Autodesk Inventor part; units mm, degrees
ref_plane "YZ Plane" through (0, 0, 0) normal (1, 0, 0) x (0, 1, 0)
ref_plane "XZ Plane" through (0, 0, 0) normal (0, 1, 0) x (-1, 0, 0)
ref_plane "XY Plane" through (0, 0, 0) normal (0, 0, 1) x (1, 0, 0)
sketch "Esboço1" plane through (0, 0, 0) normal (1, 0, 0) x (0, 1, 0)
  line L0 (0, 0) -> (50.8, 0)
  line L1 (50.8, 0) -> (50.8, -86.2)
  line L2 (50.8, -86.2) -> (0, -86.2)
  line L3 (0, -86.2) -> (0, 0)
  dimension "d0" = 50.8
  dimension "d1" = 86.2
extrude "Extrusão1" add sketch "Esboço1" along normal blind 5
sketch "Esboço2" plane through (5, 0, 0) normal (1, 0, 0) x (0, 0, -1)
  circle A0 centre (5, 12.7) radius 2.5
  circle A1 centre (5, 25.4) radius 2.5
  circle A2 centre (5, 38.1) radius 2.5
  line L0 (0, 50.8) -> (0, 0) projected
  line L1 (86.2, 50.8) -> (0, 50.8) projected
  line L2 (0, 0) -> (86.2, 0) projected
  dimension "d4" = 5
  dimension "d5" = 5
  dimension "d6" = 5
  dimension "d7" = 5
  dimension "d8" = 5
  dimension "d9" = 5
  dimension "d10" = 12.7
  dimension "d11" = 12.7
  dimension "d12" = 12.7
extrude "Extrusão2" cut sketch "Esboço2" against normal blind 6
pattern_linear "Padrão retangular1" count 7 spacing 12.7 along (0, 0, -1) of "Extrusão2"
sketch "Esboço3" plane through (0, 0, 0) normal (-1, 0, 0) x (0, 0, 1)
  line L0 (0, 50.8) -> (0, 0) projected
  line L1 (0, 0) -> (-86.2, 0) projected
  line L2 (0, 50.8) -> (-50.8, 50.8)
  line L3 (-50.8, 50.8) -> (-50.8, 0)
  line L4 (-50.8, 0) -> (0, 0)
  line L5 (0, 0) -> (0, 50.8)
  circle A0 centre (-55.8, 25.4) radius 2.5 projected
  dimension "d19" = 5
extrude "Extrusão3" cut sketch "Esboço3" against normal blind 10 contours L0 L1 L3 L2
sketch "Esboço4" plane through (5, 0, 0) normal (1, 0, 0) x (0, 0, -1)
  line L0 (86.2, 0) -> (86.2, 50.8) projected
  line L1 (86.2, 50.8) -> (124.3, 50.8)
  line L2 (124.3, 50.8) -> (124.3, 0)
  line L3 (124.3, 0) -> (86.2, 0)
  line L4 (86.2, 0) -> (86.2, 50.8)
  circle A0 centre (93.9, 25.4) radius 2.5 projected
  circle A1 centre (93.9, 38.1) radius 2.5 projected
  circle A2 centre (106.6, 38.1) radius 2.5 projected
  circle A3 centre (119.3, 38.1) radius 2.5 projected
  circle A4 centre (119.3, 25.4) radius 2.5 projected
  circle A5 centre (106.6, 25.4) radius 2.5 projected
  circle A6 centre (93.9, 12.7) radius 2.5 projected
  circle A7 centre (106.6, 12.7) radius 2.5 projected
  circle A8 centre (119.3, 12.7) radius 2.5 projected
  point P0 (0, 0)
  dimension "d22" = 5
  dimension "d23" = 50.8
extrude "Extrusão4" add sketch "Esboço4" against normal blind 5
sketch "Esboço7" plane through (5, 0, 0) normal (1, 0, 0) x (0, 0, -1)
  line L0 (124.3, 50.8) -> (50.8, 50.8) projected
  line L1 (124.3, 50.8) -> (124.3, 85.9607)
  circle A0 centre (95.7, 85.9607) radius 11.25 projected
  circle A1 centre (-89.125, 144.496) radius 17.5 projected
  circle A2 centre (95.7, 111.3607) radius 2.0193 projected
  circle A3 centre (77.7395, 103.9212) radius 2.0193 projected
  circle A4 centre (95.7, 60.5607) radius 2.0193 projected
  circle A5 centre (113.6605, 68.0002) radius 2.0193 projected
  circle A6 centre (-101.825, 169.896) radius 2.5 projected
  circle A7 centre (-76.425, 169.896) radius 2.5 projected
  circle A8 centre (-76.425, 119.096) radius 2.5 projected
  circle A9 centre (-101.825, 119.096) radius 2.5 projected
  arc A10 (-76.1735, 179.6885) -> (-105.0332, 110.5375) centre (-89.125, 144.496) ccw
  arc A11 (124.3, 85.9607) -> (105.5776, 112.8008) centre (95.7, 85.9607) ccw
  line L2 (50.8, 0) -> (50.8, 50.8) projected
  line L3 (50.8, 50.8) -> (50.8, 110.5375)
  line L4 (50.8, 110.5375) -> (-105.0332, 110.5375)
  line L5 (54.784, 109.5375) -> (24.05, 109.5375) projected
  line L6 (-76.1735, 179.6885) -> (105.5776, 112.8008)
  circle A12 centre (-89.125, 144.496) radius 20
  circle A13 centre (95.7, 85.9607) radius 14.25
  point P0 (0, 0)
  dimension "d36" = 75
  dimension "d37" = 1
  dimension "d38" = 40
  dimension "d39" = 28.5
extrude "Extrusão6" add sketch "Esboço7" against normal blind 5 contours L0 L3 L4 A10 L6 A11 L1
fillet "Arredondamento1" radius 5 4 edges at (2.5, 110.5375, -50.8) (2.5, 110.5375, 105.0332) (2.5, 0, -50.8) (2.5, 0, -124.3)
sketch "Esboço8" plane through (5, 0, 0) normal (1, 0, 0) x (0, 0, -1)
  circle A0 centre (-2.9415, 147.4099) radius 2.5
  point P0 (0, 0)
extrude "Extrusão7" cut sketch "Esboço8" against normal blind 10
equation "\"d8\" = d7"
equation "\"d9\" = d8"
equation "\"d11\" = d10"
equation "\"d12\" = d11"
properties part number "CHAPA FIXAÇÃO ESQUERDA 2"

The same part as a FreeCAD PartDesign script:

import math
import FreeCAD as App
import Part
import Sketcher
Q = App.Units.Quantity


def edges_at(feature, points):
    """Names of the edges that pass closest to the given points."""
    edges = feature.Shape.Edges
    near = lambda p: min(range(len(edges)), key=lambda i: edges[i].distToShape(Part.Vertex(*p))[0])
    return sorted({f"Edge{near(p) + 1}" for p in points})


def add_polygon(sketch, points):
    """Adds a closed chain of lines whose ends are joined by coincident constraints."""
    first, n = sketch.GeometryCount, len(points)
    for a, b in zip(points, points[1:] + points[:1]):
        sketch.addGeometry(Part.LineSegment(App.Vector(*a, 0), App.Vector(*b, 0)), False)
    for i in range(n):
        sketch.addConstraint(Sketcher.Constraint("Coincident", first + i, 2, first + (i + 1) % n, 1))

doc = App.newDocument("Part")
params = doc.addObject("Spreadsheet::Sheet", "Params")
for row, (alias, value) in enumerate([
    ("sketch1_width", "50.8 mm"),
    ("sketch1_height", "86.2 mm"),
    ("pad1_length", "5 mm"),
    ("sketch2_diameter", "5 mm"),
    ("pocket1_length", "6 mm"),
    ("linearpattern_pitch", "12.7 mm"),
    ("sketch3_width", "50.8 mm"),
    ("pocket2_length", "10 mm"),
    ("sketch4_diameter", "5 mm"),
    ("sketch4_width", "50.8 mm"),
    ("sketch4_height", "38.1 mm"),
    ("pad2_length", "5 mm"),
    ("sketch5_diameter", "40 mm"),
    ("sketch5_diameter2", "28.5 mm"),
    ("sketch5_radius", "37.5 mm"),
    ("sketch5_diameter3", "5 mm"),
    ("sketch5_radius2", "28.6 mm"),
    ("pad3_length", "5 mm"),
    ("fillet_radius", "5 mm"),
    ("sketch6_diameter", "5 mm"),
    ("pocket3_length", "10 mm"),
], start=1):
    params.set(f"A{row}", alias)
    params.set(f"B{row}", "=" + value)
    params.setAlias(f"B{row}", alias)

body = doc.addObject("PartDesign::Body", "Body")

# Sketch on YZ plane
sketch1 = body.newObject("Sketcher::SketchObject", "Sketch")
sketch1.AttachmentSupport = (doc.getObject("YZ_Plane"), [""])
sketch1.MapMode = "FlatFace"
add_polygon(sketch1, [(51, 0), (0, 0), (0, -86), (51, -86)])  # lines 0-3
sketch1.addConstraint(Sketcher.Constraint("Horizontal", 0))
sketch1.addConstraint(Sketcher.Constraint("Vertical", 1))
sketch1.addConstraint(Sketcher.Constraint("Horizontal", 2))
sketch1.addConstraint(Sketcher.Constraint("Vertical", 3))
sketch1.addConstraint(Sketcher.Constraint("Coincident", 0, 2, -1, 1))
sketch1.addConstraint(Sketcher.Constraint("DistanceX", 0, 2, 0, 1, Q("50.8 mm")))
sketch1.addConstraint(Sketcher.Constraint("DistanceY", 1, 2, 1, 1, Q("86.2 mm")))
sketch1.setExpression("Constraints[9]", "Params.sketch1_width")
sketch1.setExpression("Constraints[10]", "Params.sketch1_height")
pad1 = body.newObject("PartDesign::Pad", "Pad")
pad1.Profile = sketch1
pad1.setExpression("Length", "Params.pad1_length")

# Sketch on YZ plane
sketch2 = body.newObject("Sketcher::SketchObject", "Sketch001")
sketch2.AttachmentSupport = (doc.getObject("YZ_Plane"), [""])
sketch2.MapMode = "FlatFace"
sketch2.AttachmentOffset = App.Placement(App.Vector(0, 0, 5), App.Rotation())
sketch2.addGeometry(Part.Circle(App.Vector(12.7, -5, 0), App.Vector(0, 0, 1), 2.5), False)
sketch2.addGeometry(Part.Circle(App.Vector(25.4, -5, 0), App.Vector(0, 0, 1), 2.5), False)
sketch2.addGeometry(Part.Circle(App.Vector(38.1, -5, 0), App.Vector(0, 0, 1), 2.5), False)
sketch2.addConstraint(Sketcher.Constraint("Equal", 0, 1))
sketch2.addConstraint(Sketcher.Constraint("Equal", 1, 2))
sketch2.addConstraint(Sketcher.Constraint("Horizontal", 0, 3, 1, 3))
sketch2.addConstraint(Sketcher.Constraint("Horizontal", 1, 3, 2, 3))
sketch2.addConstraint(Sketcher.Constraint("Diameter", 0, Q("5 mm")))
sketch2.addConstraint(Sketcher.Constraint("DistanceY", 0, 3, -1, 1, Q("5 mm")))
sketch2.addConstraint(Sketcher.Constraint("DistanceX", -1, 1, 0, 3, Q("12.7 mm")))
sketch2.addConstraint(Sketcher.Constraint("DistanceX", 0, 3, 1, 3, Q("12.7 mm")))
sketch2.addConstraint(Sketcher.Constraint("DistanceX", 1, 3, 2, 3, Q("12.7 mm")))
sketch2.setExpression("Constraints[4]", "Params.sketch2_diameter")
pocket1 = body.newObject("PartDesign::Pocket", "Pocket")
pocket1.Profile = sketch2
pocket1.setExpression("Length", "Params.pocket1_length")
doc.recompute()

linearpattern = body.newObject("PartDesign::LinearPattern", "LinearPattern")
linearpattern.Originals = [pocket1]
linearpattern.Direction = (doc.getObject("Z_Axis"), [""])
linearpattern.Mode = "offset"
linearpattern.setExpression("Offset", "Params.linearpattern_pitch")
linearpattern.Occurrences = 7
linearpattern.Reversed = True
body.Tip = linearpattern

# Sketch on YZ plane
sketch3 = body.newObject("Sketcher::SketchObject", "Sketch002")
sketch3.AttachmentSupport = (doc.getObject("YZ_Plane"), [""])
sketch3.MapMode = "FlatFace"
add_polygon(sketch3, [(0, 0), (51, 0), (51, -51), (0, -51)])  # lines 0-3
sketch3.addConstraint(Sketcher.Constraint("Horizontal", 0))
sketch3.addConstraint(Sketcher.Constraint("Vertical", 1))
sketch3.addConstraint(Sketcher.Constraint("Horizontal", 2))
sketch3.addConstraint(Sketcher.Constraint("Vertical", 3))
sketch3.addConstraint(Sketcher.Constraint("Coincident", 3, 2, -1, 1))
sketch3.addConstraint(Sketcher.Constraint("Equal", 2, 1))
sketch3.addConstraint(Sketcher.Constraint("DistanceX", 0, 1, 0, 2, Q("50.8 mm")))
sketch3.setExpression("Constraints[10]", "Params.sketch3_width")
pocket2 = body.newObject("PartDesign::Pocket", "Pocket001")
pocket2.Profile = sketch3
pocket2.setExpression("Length", "Params.pocket2_length")
pocket2.Reversed = True

# Sketch on YZ plane
sketch4 = body.newObject("Sketcher::SketchObject", "Sketch003")
sketch4.AttachmentSupport = (doc.getObject("YZ_Plane"), [""])
sketch4.MapMode = "FlatFace"
sketch4.AttachmentOffset = App.Placement(App.Vector(0, 0, 5), App.Rotation())
add_polygon(sketch4, [(50.8, -86.2), (0, -86.2), (0, -124.3), (50.8, -124.3)])  # lines 0-3
sketch4.addGeometry(Part.Circle(App.Vector(12.7, -93.9, 0), App.Vector(0, 0, 1), 2.5), False)  # 4
sketch4.addGeometry(Part.Circle(App.Vector(25.4, -93.9, 0), App.Vector(0, 0, 1), 2.5), False)  # 5
sketch4.addGeometry(Part.Circle(App.Vector(12.7, -106.6, 0), App.Vector(0, 0, 1), 2.5), False)  # 6
sketch4.addGeometry(Part.Circle(App.Vector(12.7, -119.3, 0), App.Vector(0, 0, 1), 2.5), False)  # 7
sketch4.addGeometry(Part.Circle(App.Vector(25.4, -106.6, 0), App.Vector(0, 0, 1), 2.5), False)  # 8
sketch4.addGeometry(Part.Circle(App.Vector(25.4, -119.3, 0), App.Vector(0, 0, 1), 2.5), False)  # 9
sketch4.addGeometry(Part.Circle(App.Vector(38.1, -93.9, 0), App.Vector(0, 0, 1), 2.5), False)  # 10
sketch4.addGeometry(Part.Circle(App.Vector(38.1, -106.6, 0), App.Vector(0, 0, 1), 2.5), False)  # 11
sketch4.addGeometry(Part.Circle(App.Vector(38.1, -119.3, 0), App.Vector(0, 0, 1), 2.5), False)  # 12
sketch4.addConstraint(Sketcher.Constraint("Horizontal", 0))
sketch4.addConstraint(Sketcher.Constraint("Vertical", 1))
sketch4.addConstraint(Sketcher.Constraint("Horizontal", 2))
sketch4.addConstraint(Sketcher.Constraint("Vertical", 3))
sketch4.addConstraint(Sketcher.Constraint("Equal", 4, 5))
sketch4.addConstraint(Sketcher.Constraint("Equal", 5, 6))
sketch4.addConstraint(Sketcher.Constraint("Equal", 6, 7))
sketch4.addConstraint(Sketcher.Constraint("Equal", 7, 8))
sketch4.addConstraint(Sketcher.Constraint("Equal", 8, 9))
sketch4.addConstraint(Sketcher.Constraint("Equal", 9, 10))
sketch4.addConstraint(Sketcher.Constraint("Equal", 10, 11))
sketch4.addConstraint(Sketcher.Constraint("Equal", 11, 12))
sketch4.addConstraint(Sketcher.Constraint("PointOnObject", 0, 2, -2))
sketch4.addConstraint(Sketcher.Constraint("Horizontal", 4, 3, 5, 3))
sketch4.addConstraint(Sketcher.Constraint("Horizontal", 6, 3, 8, 3))
sketch4.addConstraint(Sketcher.Constraint("Horizontal", 7, 3, 9, 3))
sketch4.addConstraint(Sketcher.Constraint("Horizontal", 5, 3, 10, 3))
sketch4.addConstraint(Sketcher.Constraint("Horizontal", 8, 3, 11, 3))
sketch4.addConstraint(Sketcher.Constraint("Horizontal", 9, 3, 12, 3))
sketch4.addConstraint(Sketcher.Constraint("Vertical", 4, 3, 6, 3))
sketch4.addConstraint(Sketcher.Constraint("Vertical", 6, 3, 7, 3))
sketch4.addConstraint(Sketcher.Constraint("Vertical", 5, 3, 8, 3))
sketch4.addConstraint(Sketcher.Constraint("Vertical", 8, 3, 9, 3))
sketch4.addConstraint(Sketcher.Constraint("Vertical", 10, 3, 11, 3))
sketch4.addConstraint(Sketcher.Constraint("Vertical", 11, 3, 12, 3))
sketch4.addConstraint(Sketcher.Constraint("Diameter", 4, Q("5 mm")))
sketch4.addConstraint(Sketcher.Constraint("DistanceX", 0, 2, 0, 1, Q("50.8 mm")))
sketch4.addConstraint(Sketcher.Constraint("DistanceY", 1, 2, 7, 3, Q("5 mm")))
sketch4.addConstraint(Sketcher.Constraint("DistanceY", 1, 2, 1, 1, Q("38.1 mm")))
sketch4.addConstraint(Sketcher.Constraint("DistanceX", -1, 1, 4, 3, Q("12.7 mm")))
sketch4.addConstraint(Sketcher.Constraint("DistanceY", 4, 3, -1, 1, Q("93.9 mm")))
sketch4.addConstraint(Sketcher.Constraint("DistanceX", -1, 1, 5, 3, Q("25.4 mm")))
sketch4.addConstraint(Sketcher.Constraint("DistanceY", 6, 3, -1, 1, Q("106.6 mm")))
sketch4.addConstraint(Sketcher.Constraint("DistanceY", 7, 3, -1, 1, Q("119.3 mm")))
sketch4.addConstraint(Sketcher.Constraint("DistanceX", -1, 1, 10, 3, Q("38.1 mm")))
sketch4.setExpression("Constraints[29]", "Params.sketch4_diameter")
sketch4.setExpression("Constraints[30]", "Params.sketch4_width")
sketch4.setExpression("Constraints[32]", "Params.sketch4_height")
pad2 = body.newObject("PartDesign::Pad", "Pad001")
pad2.Profile = sketch4
pad2.setExpression("Length", "Params.pad2_length")
pad2.Reversed = True

# Sketch on YZ plane
sketch5 = body.newObject("Sketcher::SketchObject", "Sketch004")
sketch5.AttachmentSupport = (doc.getObject("YZ_Plane"), [""])
sketch5.MapMode = "FlatFace"
sketch5.AttachmentOffset = App.Placement(App.Vector(0, 0, 5), App.Rotation())
sketch5.addGeometry(Part.LineSegment(App.Vector(50.8, -50.8, 0), App.Vector(50.8, -124.3, 0)), False)
sketch5.addGeometry(Part.LineSegment(App.Vector(50.8, -124.3, 0), App.Vector(86, -124.3, 0)), False)
sketch5.addGeometry(Part.ArcOfCircle(Part.Circle(App.Vector(86, -95.7, 0), App.Vector(0, 0, 1), 28.6), math.radians(-90), math.radians(-20)), False)
sketch5.addGeometry(Part.LineSegment(App.Vector(112.8, -105.6, 0), App.Vector(179.7, 76.2, 0)), False)
sketch5.addGeometry(Part.ArcOfCircle(Part.Circle(App.Vector(144.5, 89.1, 0), App.Vector(0, 0, 1), 37.5), math.radians(-20), math.radians(155)), False)
sketch5.addGeometry(Part.LineSegment(App.Vector(110.5, 105, 0), App.Vector(110.5, -50.8, 0)), False)
sketch5.addGeometry(Part.LineSegment(App.Vector(110.5, -50.8, 0), App.Vector(50.8, -50.8, 0)), False)
sketch5.addGeometry(Part.Circle(App.Vector(60.6, -95.7, 0), App.Vector(0, 0, 1), 2), False)
sketch5.addGeometry(Part.Circle(App.Vector(68, -113.7, 0), App.Vector(0, 0, 1), 2), False)
sketch5.addGeometry(Part.Circle(App.Vector(86, -95.7, 0), App.Vector(0, 0, 1), 14.2), False)
sketch5.addGeometry(Part.Circle(App.Vector(103.9, -77.7, 0), App.Vector(0, 0, 1), 2), False)
sketch5.addGeometry(Part.Circle(App.Vector(111.4, -95.7, 0), App.Vector(0, 0, 1), 2), False)
sketch5.addGeometry(Part.Circle(App.Vector(119.1, 101.8, 0), App.Vector(0, 0, 1), 2.5), False)
sketch5.addGeometry(Part.Circle(App.Vector(119.1, 76.4, 0), App.Vector(0, 0, 1), 2.5), False)
sketch5.addGeometry(Part.Circle(App.Vector(144.5, 89.1, 0), App.Vector(0, 0, 1), 20), False)
sketch5.addGeometry(Part.Circle(App.Vector(169.9, 101.8, 0), App.Vector(0, 0, 1), 2.5), False)
sketch5.addGeometry(Part.Circle(App.Vector(169.9, 76.4, 0), App.Vector(0, 0, 1), 2.5), False)
sketch5.addConstraint(Sketcher.Constraint("Coincident", 0, 2, 1, 1))
sketch5.addConstraint(Sketcher.Constraint("Tangent", 1, 2, 2, 1))
sketch5.addConstraint(Sketcher.Constraint("Tangent", 2, 2, 3, 1))
sketch5.addConstraint(Sketcher.Constraint("Tangent", 3, 2, 4, 1))
sketch5.addConstraint(Sketcher.Constraint("Coincident", 4, 2, 5, 1))
sketch5.addConstraint(Sketcher.Constraint("Coincident", 5, 2, 6, 1))
sketch5.addConstraint(Sketcher.Constraint("Coincident", 6, 2, 0, 1))
sketch5.addConstraint(Sketcher.Constraint("Vertical", 0))
sketch5.addConstraint(Sketcher.Constraint("Horizontal", 1))
sketch5.addConstraint(Sketcher.Constraint("Vertical", 5))
sketch5.addConstraint(Sketcher.Constraint("Horizontal", 6))
sketch5.addConstraint(Sketcher.Constraint("Coincident", 9, 3, 2, 3))
sketch5.addConstraint(Sketcher.Constraint("Coincident", 14, 3, 4, 3))
sketch5.addConstraint(Sketcher.Constraint("Equal", 7, 8))
sketch5.addConstraint(Sketcher.Constraint("Equal", 8, 10))
sketch5.addConstraint(Sketcher.Constraint("Equal", 10, 11))
sketch5.addConstraint(Sketcher.Constraint("Equal", 12, 13))
sketch5.addConstraint(Sketcher.Constraint("Equal", 13, 15))
sketch5.addConstraint(Sketcher.Constraint("Equal", 15, 16))
sketch5.addConstraint(Sketcher.Constraint("Horizontal", 2, 3, 7, 3))
sketch5.addConstraint(Sketcher.Constraint("Horizontal", 9, 3, 11, 3))
sketch5.addConstraint(Sketcher.Constraint("Horizontal", 12, 3, 15, 3))
sketch5.addConstraint(Sketcher.Constraint("Horizontal", 13, 3, 16, 3))
sketch5.addConstraint(Sketcher.Constraint("Vertical", 12, 3, 13, 3))
sketch5.addConstraint(Sketcher.Constraint("Vertical", 15, 3, 16, 3))
sketch5.addConstraint(Sketcher.Constraint("Diameter", 14, Q("40 mm")))
sketch5.addConstraint(Sketcher.Constraint("Diameter", 9, Q("28.5 mm")))
sketch5.addConstraint(Sketcher.Constraint("Radius", 4, Q("37.5 mm")))
sketch5.addConstraint(Sketcher.Constraint("Diameter", 12, Q("5 mm")))
sketch5.addConstraint(Sketcher.Constraint("Radius", 2, Q("28.6 mm")))
sketch5.addConstraint(Sketcher.Constraint("DistanceY", 0, 2, 0, 1, Q("73.5 mm")))
sketch5.addConstraint(Sketcher.Constraint("Diameter", 7, Q("4.0386 mm")))
sketch5.addConstraint(Sketcher.Constraint("DistanceY", 2, 3, -1, 1, Q("95.7 mm")))
sketch5.addConstraint(Sketcher.Constraint("DistanceX", -1, 1, 0, 2, Q("50.8 mm")))
sketch5.addConstraint(Sketcher.Constraint("DistanceX", 7, 3, 2, 3, Q("25.4 mm")))
sketch5.addConstraint(Sketcher.Constraint("DistanceX", 2, 3, 11, 3, Q("25.4 mm")))
sketch5.addConstraint(Sketcher.Constraint("DistanceX", 12, 3, 4, 3, Q("25.4 mm")))
sketch5.addConstraint(Sketcher.Constraint("DistanceY", 4, 3, 12, 3, Q("12.7 mm")))
sketch5.addConstraint(Sketcher.Constraint("DistanceY", 13, 3, 12, 3, Q("25.4 mm")))
sketch5.addConstraint(Sketcher.Constraint("DistanceX", 4, 3, 15, 3, Q("25.4 mm")))
sketch5.addConstraint(Sketcher.Constraint("DistanceX", 1, 1, 1, 2, Q("35.1607 mm")))
sketch5.addConstraint(Sketcher.Constraint("DistanceX", 6, 2, 6, 1, Q("59.7375 mm")))
sketch5.addConstraint(Sketcher.Constraint("DistanceY", 5, 2, 5, 1, Q("155.8332 mm")))
sketch5.addConstraint(Sketcher.Constraint("DistanceX", -1, 1, 4, 3, Q("144.496 mm")))
sketch5.addConstraint(Sketcher.Constraint("DistanceX", 8, 3, 10, 3, Q("35.921 mm")))
sketch5.addConstraint(Sketcher.Constraint("DistanceY", 8, 3, 10, 3, Q("35.921 mm")))
sketch5.addConstraint(Sketcher.Constraint("DistanceY", 2, 2, 10, 3, Q("27.838 mm")))
sketch5.addConstraint(Sketcher.Constraint("DistanceX", -1, 1, 8, 3, Q("68.0002 mm")))
sketch5.setExpression("Constraints[25]", "Params.sketch5_diameter")
sketch5.setExpression("Constraints[26]", "Params.sketch5_diameter2")
sketch5.setExpression("Constraints[27]", "Params.sketch5_radius")
sketch5.setExpression("Constraints[28]", "Params.sketch5_diameter3")
sketch5.setExpression("Constraints[29]", "Params.sketch5_radius2")
pad3 = body.newObject("PartDesign::Pad", "Pad002")
pad3.Profile = sketch5
pad3.setExpression("Length", "Params.pad3_length")
pad3.Reversed = True
doc.recompute()

fillet = body.newObject("PartDesign::Fillet", "Fillet")
fillet.Base = (pad3, edges_at(pad3, [
    (2.5, 110.537, -50.8),
    (2.5, 110.537, 105.033),
    (2.5, 0, -50.8),
    (2.5, 0, -124.3),
]))
fillet.setExpression("Radius", "Params.fillet_radius")

# Sketch on YZ plane
sketch6 = body.newObject("Sketcher::SketchObject", "Sketch005")
sketch6.AttachmentSupport = (doc.getObject("YZ_Plane"), [""])
sketch6.MapMode = "FlatFace"
sketch6.AttachmentOffset = App.Placement(App.Vector(0, 0, 5), App.Rotation())
sketch6.addGeometry(Part.Circle(App.Vector(147.4, 2.9, 0), App.Vector(0, 0, 1), 2.5), False)
sketch6.addConstraint(Sketcher.Constraint("Diameter", 0, Q("5 mm")))
sketch6.addConstraint(Sketcher.Constraint("DistanceX", -1, 1, 0, 3, Q("147.41 mm")))
sketch6.addConstraint(Sketcher.Constraint("DistanceY", -1, 1, 0, 3, Q("2.9415 mm")))
sketch6.setExpression("Constraints[0]", "Params.sketch6_diameter")
pocket3 = body.newObject("PartDesign::Pocket", "Pocket002")
pocket3.Profile = sketch6
pocket3.setExpression("Length", "Params.pocket3_length")

doc.recompute()
